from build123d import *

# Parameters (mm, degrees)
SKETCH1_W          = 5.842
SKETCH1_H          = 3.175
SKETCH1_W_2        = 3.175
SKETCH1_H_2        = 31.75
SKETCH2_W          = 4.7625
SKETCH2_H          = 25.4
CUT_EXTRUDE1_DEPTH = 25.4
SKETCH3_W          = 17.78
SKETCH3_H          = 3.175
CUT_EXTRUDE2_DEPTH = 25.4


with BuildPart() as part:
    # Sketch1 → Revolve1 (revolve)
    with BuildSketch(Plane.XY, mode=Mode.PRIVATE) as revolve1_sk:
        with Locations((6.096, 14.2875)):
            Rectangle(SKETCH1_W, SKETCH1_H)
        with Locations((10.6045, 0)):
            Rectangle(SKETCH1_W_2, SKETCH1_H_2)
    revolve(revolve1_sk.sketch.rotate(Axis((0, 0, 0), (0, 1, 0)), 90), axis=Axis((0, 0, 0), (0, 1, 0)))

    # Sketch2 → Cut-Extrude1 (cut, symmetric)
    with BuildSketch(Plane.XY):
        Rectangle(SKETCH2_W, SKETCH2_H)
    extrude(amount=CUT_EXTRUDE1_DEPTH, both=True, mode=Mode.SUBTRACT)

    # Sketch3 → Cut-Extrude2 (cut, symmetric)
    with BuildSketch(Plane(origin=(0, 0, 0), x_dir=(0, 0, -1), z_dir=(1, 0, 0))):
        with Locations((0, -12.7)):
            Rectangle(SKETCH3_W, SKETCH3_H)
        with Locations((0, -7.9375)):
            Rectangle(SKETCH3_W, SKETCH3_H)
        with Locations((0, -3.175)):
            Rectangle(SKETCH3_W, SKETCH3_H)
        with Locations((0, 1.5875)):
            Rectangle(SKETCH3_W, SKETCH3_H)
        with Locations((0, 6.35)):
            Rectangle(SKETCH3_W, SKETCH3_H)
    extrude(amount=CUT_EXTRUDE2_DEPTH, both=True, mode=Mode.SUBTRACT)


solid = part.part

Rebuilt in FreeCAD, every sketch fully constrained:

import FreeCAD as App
import Part
import Sketcher
from FreeCAD import Vector
Q = App.Units.Quantity


def add_polygon(sketch, points):
    """Adds a closed chain of lines whose ends are joined by coincident constraints."""
    first, n = sketch.GeometryCount, len(points)
    for a, b in zip(points, points[1:] + points[:1]):
        sketch.addGeometry(Part.LineSegment(App.Vector(*a, 0), App.Vector(*b, 0)), False)
    for i in range(n):
        sketch.addConstraint(Sketcher.Constraint("Coincident", first + i, 2, first + (i + 1) % n, 1))

doc = App.newDocument("Part")
body = doc.addObject("PartDesign::Body", "Body")

sketch1 = doc.addObject("Sketcher::SketchObject", "Sketch")
body.addObject(sketch1)
sketch1.AttachmentSupport = (doc.XY_Plane, [""])
sketch1.MapMode = "FlatFace"
add_polygon(sketch1, [(3.175, 15.875), (3.175, 12.7), (9.017, 12.7), (9.017, -15.875), (12.192, -15.875), (12.192, 15.875)])
sketch1.addConstraint([
    Sketcher.Constraint("Vertical", 0),
    Sketcher.Constraint("Horizontal", 1),
    Sketcher.Constraint("Vertical", 2),
    Sketcher.Constraint("Horizontal", 3),
    Sketcher.Constraint("Vertical", 4),
    Sketcher.Constraint("Horizontal", 5),
    Sketcher.Constraint("Equal", 3, 0),
    Sketcher.Constraint("DistanceX", 1, 1, 1, 2, Q("0.23 in")),
    Sketcher.Constraint("DistanceY", 4, 1, 4, 2, Q("1.25 in")),
    Sketcher.Constraint("DistanceY", -1, 1, 0, 2, Q("0.5 in")),
    Sketcher.Constraint("DistanceX", 3, 1, 3, 2, Q("0.125 in")),
    Sketcher.Constraint("DistanceX", -1, 1, 3, 2, Q("0.48 in")),
])
revolution = doc.addObject("PartDesign::Revolution", "Revolution")
body.addObject(revolution)
revolution.Profile = sketch1
revolution.ReferenceAxis = (sketch1, ["V_Axis"])
revolution.Angle = 360

sketch2 = doc.addObject("Sketcher::SketchObject", "Sketch001")
body.addObject(sketch2)
sketch2.AttachmentSupport = (doc.XY_Plane, [""])
sketch2.MapMode = "FlatFace"
add_polygon(sketch2, [(-2.38125, 12.7), (-2.38125, -12.7), (2.38125, -12.7), (2.38125, 12.7)])
sketch2.addConstraint([
    Sketcher.Constraint("Vertical", 0),
    Sketcher.Constraint("Horizontal", 1),
    Sketcher.Constraint("Vertical", 2),
    Sketcher.Constraint("Horizontal", 3),
    Sketcher.Constraint("Symmetric", 0, 2, 2, 2, -1, 1),
    Sketcher.Constraint("DistanceY", 0, 2, 0, 1, Q("1 in")),
    Sketcher.Constraint("DistanceX", 1, 1, 1, 2, Q("0.1875 in")),
])
pocket1 = doc.addObject("PartDesign::Pocket", "Pocket")
body.addObject(pocket1)
pocket1.Profile = sketch2
pocket1.Length = Q("2 in")
pocket1.Midplane = True

sketch3 = doc.addObject("Sketcher::SketchObject", "Sketch002")
body.addObject(sketch3)
sketch3.AttachmentSupport = (doc.YZ_Plane, [""])
sketch3.MapMode = "FlatFace"
add_polygon(sketch3, [(-11.1125, 8.89), (-14.2875, 8.89), (-14.2875, -8.89), (-11.1125, -8.89)])
add_polygon(sketch3, [(-6.35, 8.89), (-9.525, 8.89), (-9.525, -8.89), (-6.35, -8.89)])
add_polygon(sketch3, [(-1.5875, 8.89), (-4.7625, 8.89), (-4.7625, -8.89), (-1.5875, -8.89)])
add_polygon(sketch3, [(3.175, 8.89), (0, 8.89), (0, -8.89), (3.175, -8.89)])
add_polygon(sketch3, [(7.9375, 8.89), (4.7625, 8.89), (4.7625, -8.89), (7.9375, -8.89)])
sketch3.addConstraint([
    Sketcher.Constraint("Horizontal", 0),
    Sketcher.Constraint("Vertical", 1),
    Sketcher.Constraint("Horizontal", 2),
    Sketcher.Constraint("Vertical", 3),
    Sketcher.Constraint("Horizontal", 4),
    Sketcher.Constraint("Vertical", 5),
    Sketcher.Constraint("Horizontal", 6),
    Sketcher.Constraint("Vertical", 7),
    Sketcher.Constraint("Horizontal", 8),
    Sketcher.Constraint("Vertical", 9),
    Sketcher.Constraint("Horizontal", 10),
    Sketcher.Constraint("Vertical", 11),
    Sketcher.Constraint("Horizontal", 12),
    Sketcher.Constraint("Vertical", 13),
    Sketcher.Constraint("Horizontal", 14),
    Sketcher.Constraint("Vertical", 15),
    Sketcher.Constraint("Horizontal", 16),
    Sketcher.Constraint("Vertical", 17),
    Sketcher.Constraint("Horizontal", 18),
    Sketcher.Constraint("Vertical", 19),
    Sketcher.Constraint("Symmetric", 12, 2, 13, 2, -1, 1),
    Sketcher.Constraint("Symmetric", 9, 2, 16, 2, -1, 1),
    Sketcher.Constraint("Horizontal", 3, 2, 4, 2),
    Sketcher.Constraint("Horizontal", 2, 2, 5, 2),
    Sketcher.Constraint("Horizontal", 7, 2, 8, 2),
    Sketcher.Constraint("Horizontal", 6, 2, 9, 2),
    Sketcher.Constraint("Horizontal", 11, 2, 12, 2),
    Sketcher.Constraint("Horizontal", 10, 2, 13, 2),
    Sketcher.Constraint("Horizontal", 14, 2, 17, 2),
    Sketcher.Constraint("Equal", 2, 4),
    Sketcher.Constraint("Equal", 6, 8),
    Sketcher.Constraint("Equal", 10, 12),
    Sketcher.Constraint("Equal", 14, 16),
    Sketcher.Constraint("DistanceY", 1, 2, 1, 1, Q("0.7 in")),
    Sketcher.Constraint("DistanceX", 1, 2, 10, 2, Q("0.5 in")),
    Sketcher.Constraint("DistanceX", 5, 2, 14, 2, Q("0.5 in")),
    Sketcher.Constraint("DistanceX", 9, 2, 18, 2, Q("0.5 in")),
    Sketcher.Constraint("DistanceX", 0, 2, 0, 1, Q("0.125 in")),
])
pocket2 = doc.addObject("PartDesign::Pocket", "Pocket001")
body.addObject(pocket2)
pocket2.Profile = sketch3
pocket2.Length = Q("2 in")
pocket2.Midplane = True

doc.recompute()
